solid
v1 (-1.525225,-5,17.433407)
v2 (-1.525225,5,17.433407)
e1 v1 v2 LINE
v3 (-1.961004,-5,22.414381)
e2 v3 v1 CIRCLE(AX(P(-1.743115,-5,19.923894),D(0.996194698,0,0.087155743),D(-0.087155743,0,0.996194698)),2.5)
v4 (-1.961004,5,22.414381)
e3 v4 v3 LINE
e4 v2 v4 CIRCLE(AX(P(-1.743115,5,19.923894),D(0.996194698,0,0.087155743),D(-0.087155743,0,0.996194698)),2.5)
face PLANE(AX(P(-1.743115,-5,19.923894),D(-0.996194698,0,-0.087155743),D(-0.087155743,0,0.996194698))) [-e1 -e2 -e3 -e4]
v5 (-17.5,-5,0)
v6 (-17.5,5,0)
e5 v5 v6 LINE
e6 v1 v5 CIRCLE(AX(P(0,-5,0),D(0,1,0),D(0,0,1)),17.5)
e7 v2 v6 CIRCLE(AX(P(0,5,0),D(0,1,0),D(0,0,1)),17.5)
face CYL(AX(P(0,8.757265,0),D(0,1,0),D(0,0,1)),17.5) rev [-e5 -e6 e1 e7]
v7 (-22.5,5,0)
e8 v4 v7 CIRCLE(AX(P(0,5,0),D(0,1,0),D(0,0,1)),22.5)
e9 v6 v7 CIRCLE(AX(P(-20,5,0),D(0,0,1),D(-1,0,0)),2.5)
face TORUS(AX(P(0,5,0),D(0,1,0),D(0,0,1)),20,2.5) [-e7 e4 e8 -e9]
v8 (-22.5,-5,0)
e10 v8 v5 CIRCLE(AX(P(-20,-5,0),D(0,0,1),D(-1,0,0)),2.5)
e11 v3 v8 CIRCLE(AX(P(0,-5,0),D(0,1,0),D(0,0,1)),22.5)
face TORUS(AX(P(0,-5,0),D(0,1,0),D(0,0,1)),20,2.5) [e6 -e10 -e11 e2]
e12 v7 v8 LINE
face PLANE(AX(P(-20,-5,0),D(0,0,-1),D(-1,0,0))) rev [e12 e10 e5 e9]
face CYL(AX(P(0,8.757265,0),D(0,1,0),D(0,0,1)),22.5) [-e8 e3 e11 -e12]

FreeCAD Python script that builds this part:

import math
import FreeCAD as App
import Part
import Sketcher

V = App.Vector

doc = App.newDocument("Part")
params = doc.addObject("Spreadsheet::Sheet", "Params")
for row, (alias, value) in enumerate([
    ("sketch1_radius", "2.5 mm"),
    ("sketch1_height", "10 mm"),
    ("revolution_angle", "275 deg"),
], start=1):
    params.set(f"A{row}", alias)
    params.set(f"B{row}", "=" + value)
    params.setAlias(f"B{row}", alias)

body = doc.addObject("PartDesign::Body", "Body")

# Sketch on XY plane
sketch1 = body.newObject("Sketcher::SketchObject", "Sketch")
sketch1.AttachmentSupport = (doc.getObject("XY_Plane"), [""])
sketch1.MapMode = "FlatFace"
sketch1.addGeometry([
    Part.LineSegment(V(-22.5, 5, 0), V(-22.5, -5, 0)),
    Part.ArcOfCircle(Part.Circle(V(-20, -5, 0), V(0, 0, 1), 2.5), math.radians(180), math.radians(360)),
    Part.LineSegment(V(-17.5, -5, 0), V(-17.5, 5, 0)),
    Part.ArcOfCircle(Part.Circle(V(-20, 5, 0), V(0, 0, 1), 2.5), math.radians(0), math.radians(180)),
], False)
sketch1.addConstraint([
    Sketcher.Constraint("Tangent", 0, 2, 1, 1),
    Sketcher.Constraint("Tangent", 1, 2, 2, 1),
    Sketcher.Constraint("Tangent", 2, 2, 3, 1),
    Sketcher.Constraint("Tangent", 3, 2, 0, 1),
    Sketcher.Constraint("Vertical", 0),
    Sketcher.Constraint("Vertical", 2),
    Sketcher.Constraint("Radius", 1, 2.5),
    Sketcher.Constraint("DistanceY", 0, 2, 0, 1, 10.0),
    Sketcher.Constraint("DistanceX", 1, 3, -1, 1, 20.0),
    Sketcher.Constraint("DistanceY", 1, 3, -1, 1, 5.0),
])
sketch1.setExpression("Constraints[6]", "Params.sketch1_radius")
sketch1.setExpression("Constraints[7]", "Params.sketch1_height")
revolution = body.newObject("PartDesign::Revolution", "Revolution")
revolution.Profile = sketch1
revolution.ReferenceAxis = (sketch1, ["V_Axis"])
revolution.setExpression("Angle", "Params.revolution_angle")
revolution.Reversed = True

doc.recompute()
